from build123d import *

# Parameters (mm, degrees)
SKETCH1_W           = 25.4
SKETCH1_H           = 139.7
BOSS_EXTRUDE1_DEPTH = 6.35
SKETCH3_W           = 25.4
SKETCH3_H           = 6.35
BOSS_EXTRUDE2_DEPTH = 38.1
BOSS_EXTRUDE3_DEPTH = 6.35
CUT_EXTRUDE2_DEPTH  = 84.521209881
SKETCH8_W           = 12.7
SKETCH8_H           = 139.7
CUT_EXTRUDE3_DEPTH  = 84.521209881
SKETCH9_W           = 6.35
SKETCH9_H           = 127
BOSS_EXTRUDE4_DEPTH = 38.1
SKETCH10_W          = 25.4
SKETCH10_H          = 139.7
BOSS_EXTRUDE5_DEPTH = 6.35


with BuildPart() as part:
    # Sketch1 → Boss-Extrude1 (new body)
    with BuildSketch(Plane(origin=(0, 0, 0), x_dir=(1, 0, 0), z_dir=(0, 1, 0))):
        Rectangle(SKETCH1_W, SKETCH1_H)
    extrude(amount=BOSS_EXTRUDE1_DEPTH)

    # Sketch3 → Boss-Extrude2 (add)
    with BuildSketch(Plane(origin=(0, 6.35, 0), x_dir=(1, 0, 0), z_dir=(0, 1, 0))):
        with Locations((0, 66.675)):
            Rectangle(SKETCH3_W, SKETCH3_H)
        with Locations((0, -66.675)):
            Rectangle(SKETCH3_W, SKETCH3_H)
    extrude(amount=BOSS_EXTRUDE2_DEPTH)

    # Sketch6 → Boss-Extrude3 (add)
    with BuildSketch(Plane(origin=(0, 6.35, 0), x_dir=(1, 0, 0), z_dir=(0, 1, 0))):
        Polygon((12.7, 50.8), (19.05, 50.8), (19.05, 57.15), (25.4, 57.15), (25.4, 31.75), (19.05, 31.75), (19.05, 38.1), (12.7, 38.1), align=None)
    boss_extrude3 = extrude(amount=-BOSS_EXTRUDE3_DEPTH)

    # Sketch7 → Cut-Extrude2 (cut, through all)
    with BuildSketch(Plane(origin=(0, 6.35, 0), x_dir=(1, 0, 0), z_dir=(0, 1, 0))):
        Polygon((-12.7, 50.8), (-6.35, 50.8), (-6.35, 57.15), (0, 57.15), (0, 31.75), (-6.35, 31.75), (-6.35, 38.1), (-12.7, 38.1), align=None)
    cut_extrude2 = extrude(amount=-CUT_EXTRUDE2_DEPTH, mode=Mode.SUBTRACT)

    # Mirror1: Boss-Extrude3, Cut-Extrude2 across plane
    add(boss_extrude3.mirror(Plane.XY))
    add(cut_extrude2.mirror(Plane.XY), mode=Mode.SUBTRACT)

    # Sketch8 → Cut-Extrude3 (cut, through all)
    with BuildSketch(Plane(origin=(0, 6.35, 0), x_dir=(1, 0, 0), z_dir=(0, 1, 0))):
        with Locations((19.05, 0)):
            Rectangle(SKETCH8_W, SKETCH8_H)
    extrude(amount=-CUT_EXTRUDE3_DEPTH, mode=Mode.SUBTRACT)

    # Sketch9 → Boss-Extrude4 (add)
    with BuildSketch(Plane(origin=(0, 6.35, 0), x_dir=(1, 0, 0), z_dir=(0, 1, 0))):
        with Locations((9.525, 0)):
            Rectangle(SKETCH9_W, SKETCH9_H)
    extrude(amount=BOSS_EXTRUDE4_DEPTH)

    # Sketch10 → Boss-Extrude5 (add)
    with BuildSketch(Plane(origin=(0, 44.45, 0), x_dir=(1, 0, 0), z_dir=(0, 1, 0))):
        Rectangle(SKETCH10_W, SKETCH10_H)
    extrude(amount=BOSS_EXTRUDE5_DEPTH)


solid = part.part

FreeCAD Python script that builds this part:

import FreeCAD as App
import Part
import Sketcher
from FreeCAD import Vector
Q = App.Units.Quantity

doc = App.newDocument("Part")
body = doc.addObject("PartDesign::Body", "Body")

# Sketch on XZ plane
sketch1 = body.newObject("Sketcher::SketchObject", "Sketch")
sketch1.AttachmentSupport = (doc.getObject("XZ_Plane"), [""])
sketch1.MapMode = "FlatFace"
sketch1.addGeometry(Part.LineSegment(Vector(-13, -70, 0), Vector(-13, 70, 0)), False)
sketch1.addGeometry(Part.LineSegment(Vector(-13, 70, 0), Vector(13, 70, 0)), False)
sketch1.addGeometry(Part.LineSegment(Vector(13, 70, 0), Vector(13, -70, 0)), False)
sketch1.addGeometry(Part.LineSegment(Vector(13, -70, 0), Vector(-13, -70, 0)), False)
sketch1.addConstraint(Sketcher.Constraint("Coincident", 0, 2, 1, 1))
sketch1.addConstraint(Sketcher.Constraint("Coincident", 1, 2, 2, 1))
sketch1.addConstraint(Sketcher.Constraint("Coincident", 2, 2, 3, 1))
sketch1.addConstraint(Sketcher.Constraint("Coincident", 3, 2, 0, 1))
sketch1.addConstraint(Sketcher.Constraint("Vertical", 0))
sketch1.addConstraint(Sketcher.Constraint("Horizontal", 1))
sketch1.addConstraint(Sketcher.Constraint("Vertical", 2))
sketch1.addConstraint(Sketcher.Constraint("Horizontal", 3))
sketch1.addConstraint(Sketcher.Constraint("Symmetric", 0, 2, 2, 2, -1, 1))
sketch1.addConstraint(Sketcher.Constraint("DistanceX", 1, 1, 1, 2, Q("1 in")))
sketch1.addConstraint(Sketcher.Constraint("DistanceY", 0, 1, 0, 2, Q("5.5 in")))
pad1 = body.newObject("PartDesign::Pad", "Pad")
pad1.Profile = sketch1
pad1.Length = Q("0.25 in")
pad1.Reversed = True

# Sketch on XZ plane
sketch2 = body.newObject("Sketcher::SketchObject", "Sketch001")
sketch2.AttachmentSupport = (doc.getObject("XZ_Plane"), [""])
sketch2.MapMode = "FlatFace"
sketch2.AttachmentOffset = App.Placement(Vector(0, 0, -0.25 * 25.4), App.Rotation())
sketch2.addGeometry(Part.LineSegment(Vector(-13, -70, 0), Vector(-13, -64, 0)), False)
sketch2.addGeometry(Part.LineSegment(Vector(-13, -64, 0), Vector(13, -64, 0)), False)
sketch2.addGeometry(Part.LineSegment(Vector(13, -64, 0), Vector(13, -70, 0)), False)
sketch2.addGeometry(Part.LineSegment(Vector(13, -70, 0), Vector(-13, -70, 0)), False)
sketch2.addGeometry(Part.LineSegment(Vector(-13, 64, 0), Vector(-13, 70, 0)), False)
sketch2.addGeometry(Part.LineSegment(Vector(-13, 70, 0), Vector(13, 70, 0)), False)
sketch2.addGeometry(Part.LineSegment(Vector(13, 70, 0), Vector(13, 64, 0)), False)
sketch2.addGeometry(Part.LineSegment(Vector(13, 64, 0), Vector(-13, 64, 0)), False)
sketch2.addConstraint(Sketcher.Constraint("Coincident", 0, 2, 1, 1))
sketch2.addConstraint(Sketcher.Constraint("Coincident", 1, 2, 2, 1))
sketch2.addConstraint(Sketcher.Constraint("Coincident", 2, 2, 3, 1))
sketch2.addConstraint(Sketcher.Constraint("Coincident", 3, 2, 0, 1))
sketch2.addConstraint(Sketcher.Constraint("Coincident", 4, 2, 5, 1))
sketch2.addConstraint(Sketcher.Constraint("Coincident", 5, 2, 6, 1))
sketch2.addConstraint(Sketcher.Constraint("Coincident", 6, 2, 7, 1))
sketch2.addConstraint(Sketcher.Constraint("Coincident", 7, 2, 4, 1))
sketch2.addConstraint(Sketcher.Constraint("Vertical", 0))
sketch2.addConstraint(Sketcher.Constraint("Horizontal", 1))
sketch2.addConstraint(Sketcher.Constraint("Vertical", 2))
sketch2.addConstraint(Sketcher.Constraint("Horizontal", 3))
sketch2.addConstraint(Sketcher.Constraint("Vertical", 4))
sketch2.addConstraint(Sketcher.Constraint("Horizontal", 5))
sketch2.addConstraint(Sketcher.Constraint("Vertical", 6))
sketch2.addConstraint(Sketcher.Constraint("Horizontal", 7))
sketch2.addConstraint(Sketcher.Constraint("Symmetric", 2, 2, 4, 2, -1, 1))
sketch2.addConstraint(Sketcher.Constraint("Symmetric", 0, 2, 6, 2, -1, 1))
sketch2.addConstraint(Sketcher.Constraint("Vertical", 3, 2, 4, 2))
sketch2.addConstraint(Sketcher.Constraint("DistanceX", 1, 1, 1, 2, Q("1 in")))
sketch2.addConstraint(Sketcher.Constraint("DistanceY", 1, 2, 6, 2, Q("5 in")))
sketch2.addConstraint(Sketcher.Constraint("DistanceY", 0, 1, 0, 2, Q("0.25 in")))
pad2 = body.newObject("PartDesign::Pad", "Pad001")
pad2.Profile = sketch2
pad2.Length = Q("1.5 in")
pad2.Reversed = True

# Sketch on XZ plane
sketch3 = body.newObject("Sketcher::SketchObject", "Sketch002")
sketch3.AttachmentSupport = (doc.getObject("XZ_Plane"), [""])
sketch3.MapMode = "FlatFace"
sketch3.AttachmentOffset = App.Placement(Vector(0, 0, -0.25 * 25.4), App.Rotation())
sketch3.addGeometry(Part.LineSegment(Vector(19, -51, 0), Vector(13, -51, 0)), False)
sketch3.addGeometry(Part.LineSegment(Vector(13, -51, 0), Vector(13, -38, 0)), False)
sketch3.addGeometry(Part.LineSegment(Vector(13, -38, 0), Vector(19, -38, 0)), False)
sketch3.addGeometry(Part.LineSegment(Vector(19, -38, 0), Vector(19, -32, 0)), False)
sketch3.addGeometry(Part.LineSegment(Vector(19, -32, 0), Vector(25, -32, 0)), False)
sketch3.addGeometry(Part.LineSegment(Vector(25, -32, 0), Vector(25, -57, 0)), False)
sketch3.addGeometry(Part.LineSegment(Vector(25, -57, 0), Vector(19, -57, 0)), False)
sketch3.addGeometry(Part.LineSegment(Vector(19, -57, 0), Vector(19, -51, 0)), False)
sketch3.addConstraint(Sketcher.Constraint("Coincident", 0, 2, 1, 1))
sketch3.addConstraint(Sketcher.Constraint("Coincident", 1, 2, 2, 1))
sketch3.addConstraint(Sketcher.Constraint("Coincident", 2, 2, 3, 1))
sketch3.addConstraint(Sketcher.Constraint("Coincident", 3, 2, 4, 1))
sketch3.addConstraint(Sketcher.Constraint("Coincident", 4, 2, 5, 1))
sketch3.addConstraint(Sketcher.Constraint("Coincident", 5, 2, 6, 1))
sketch3.addConstraint(Sketcher.Constraint("Coincident", 6, 2, 7, 1))
sketch3.addConstraint(Sketcher.Constraint("Coincident", 7, 2, 0, 1))
sketch3.addConstraint(Sketcher.Constraint("Horizontal", 0))
sketch3.addConstraint(Sketcher.Constraint("Vertical", 1))
sketch3.addConstraint(Sketcher.Constraint("Horizontal", 2))
sketch3.addConstraint(Sketcher.Constraint("Vertical", 3))
sketch3.addConstraint(Sketcher.Constraint("Horizontal", 4))
sketch3.addConstraint(Sketcher.Constraint("Vertical", 5))
sketch3.addConstraint(Sketcher.Constraint("Horizontal", 6))
sketch3.addConstraint(Sketcher.Constraint("Vertical", 7))
sketch3.addConstraint(Sketcher.Constraint("Vertical", 3, 2, 6, 2))
sketch3.addConstraint(Sketcher.Constraint("Equal", 2, 4))
sketch3.addConstraint(Sketcher.Constraint("Equal", 6, 3))
sketch3.addConstraint(Sketcher.Constraint("Equal", 3, 7))
sketch3.addConstraint(Sketcher.Constraint("DistanceY", 5, 2, 5, 1, Q("1 in")))
sketch3.addConstraint(Sketcher.Constraint("DistanceY", 1, 1, 1, 2, Q("0.5 in")))
sketch3.addConstraint(Sketcher.Constraint("DistanceY", 0, 2, -1, 1, Q("2 in")))
sketch3.addConstraint(Sketcher.Constraint("DistanceX", -1, 1, 4, 2, Q("1 in")))
pad3 = body.newObject("PartDesign::Pad", "Pad002")
pad3.Profile = sketch3
pad3.Length = Q("0.25 in")

# Sketch on XZ plane
sketch4 = body.newObject("Sketcher::SketchObject", "Sketch003")
sketch4.AttachmentSupport = (doc.getObject("XZ_Plane"), [""])
sketch4.MapMode = "FlatFace"
sketch4.AttachmentOffset = App.Placement(Vector(0, 0, -0.25 * 25.4), App.Rotation())
sketch4.addGeometry(Part.LineSegment(Vector(-6, -51, 0), Vector(-13, -51, 0)), False)
sketch4.addGeometry(Part.LineSegment(Vector(-13, -51, 0), Vector(-13, -38, 0)), False)
sketch4.addGeometry(Part.LineSegment(Vector(-13, -38, 0), Vector(-6, -38, 0)), False)
sketch4.addGeometry(Part.LineSegment(Vector(-6, -38, 0), Vector(-6, -32, 0)), False)
sketch4.addGeometry(Part.LineSegment(Vector(-6, -32, 0), Vector(0, -32, 0)), False)
sketch4.addGeometry(Part.LineSegment(Vector(0, -32, 0), Vector(0, -57, 0)), False)
sketch4.addGeometry(Part.LineSegment(Vector(0, -57, 0), Vector(-6, -57, 0)), False)
sketch4.addGeometry(Part.LineSegment(Vector(-6, -57, 0), Vector(-6, -51, 0)), False)
sketch4.addConstraint(Sketcher.Constraint("Coincident", 0, 2, 1, 1))
sketch4.addConstraint(Sketcher.Constraint("Coincident", 1, 2, 2, 1))
sketch4.addConstraint(Sketcher.Constraint("Coincident", 2, 2, 3, 1))
sketch4.addConstraint(Sketcher.Constraint("Coincident", 3, 2, 4, 1))
sketch4.addConstraint(Sketcher.Constraint("Coincident", 4, 2, 5, 1))
sketch4.addConstraint(Sketcher.Constraint("Coincident", 5, 2, 6, 1))
sketch4.addConstraint(Sketcher.Constraint("Coincident", 6, 2, 7, 1))
sketch4.addConstraint(Sketcher.Constraint("Coincident", 7, 2, 0, 1))
sketch4.addConstraint(Sketcher.Constraint("Horizontal", 0))
sketch4.addConstraint(Sketcher.Constraint("Vertical", 1))
sketch4.addConstraint(Sketcher.Constraint("Horizontal", 2))
sketch4.addConstraint(Sketcher.Constraint("Vertical", 3))
sketch4.addConstraint(Sketcher.Constraint("Horizontal", 4))
sketch4.addConstraint(Sketcher.Constraint("Vertical", 5))
sketch4.addConstraint(Sketcher.Constraint("Horizontal", 6))
sketch4.addConstraint(Sketcher.Constraint("Vertical", 7))
sketch4.addConstraint(Sketcher.Constraint("PointOnObject", 4, 2, -2))
sketch4.addConstraint(Sketcher.Constraint("Vertical", 3, 2, 6, 2))
sketch4.addConstraint(Sketcher.Constraint("Equal", 2, 4))
sketch4.addConstraint(Sketcher.Constraint("Equal", 6, 3))
sketch4.addConstraint(Sketcher.Constraint("Equal", 3, 7))
sketch4.addConstraint(Sketcher.Constraint("DistanceY", 5, 2, 5, 1, Q("1 in")))
sketch4.addConstraint(Sketcher.Constraint("DistanceY", 1, 1, 1, 2, Q("0.5 in")))
sketch4.addConstraint(Sketcher.Constraint("DistanceY", 0, 2, -1, 1, Q("2 in")))
pocket1 = body.newObject("PartDesign::Pocket", "Pocket")
pocket1.Profile = sketch4
pocket1.Type = "ThroughAll"
pocket1.Reversed = True
doc.recompute()

mirrored = body.newObject("PartDesign::Mirrored", "Mirrored")
mirrored.Originals = [pad3, pocket1]
mirrored.MirrorPlane = (doc.getObject("XY_Plane"), [""])
body.Tip = mirrored

# Sketch on XZ plane
sketch5 = body.newObject("Sketcher::SketchObject", "Sketch004")
sketch5.AttachmentSupport = (doc.getObject("XZ_Plane"), [""])
sketch5.MapMode = "FlatFace"
sketch5.AttachmentOffset = App.Placement(Vector(0, 0, -0.25 * 25.4), App.Rotation())
sketch5.addGeometry(Part.LineSegment(Vector(13, -70, 0), Vector(13, 70, 0)), False)
sketch5.addGeometry(Part.LineSegment(Vector(13, 70, 0), Vector(25, 70, 0)), False)
sketch5.addGeometry(Part.LineSegment(Vector(25, 70, 0), Vector(25, -70, 0)), False)
sketch5.addGeometry(Part.LineSegment(Vector(25, -70, 0), Vector(13, -70, 0)), False)
sketch5.addConstraint(Sketcher.Constraint("Coincident", 0, 2, 1, 1))
sketch5.addConstraint(Sketcher.Constraint("Coincident", 1, 2, 2, 1))
sketch5.addConstraint(Sketcher.Constraint("Coincident", 2, 2, 3, 1))
sketch5.addConstraint(Sketcher.Constraint("Coincident", 3, 2, 0, 1))
sketch5.addConstraint(Sketcher.Constraint("Vertical", 0))
sketch5.addConstraint(Sketcher.Constraint("Horizontal", 1))
sketch5.addConstraint(Sketcher.Constraint("Vertical", 2))
sketch5.addConstraint(Sketcher.Constraint("Horizontal", 3))
sketch5.addConstraint(Sketcher.Constraint("DistanceX", 1, 1, 1, 2, Q("0.5 in")))
sketch5.addConstraint(Sketcher.Constraint("DistanceY", 0, 1, 0, 2, Q("5.5 in")))
sketch5.addConstraint(Sketcher.Constraint("DistanceX", -1, 1, 1, 2, Q("1 in")))
sketch5.addConstraint(Sketcher.Constraint("DistanceY", -1, 1, 0, 2, Q("2.75 in")))
pocket2 = body.newObject("PartDesign::Pocket", "Pocket001")
pocket2.Profile = sketch5
pocket2.Type = "ThroughAll"
pocket2.Reversed = True

# Sketch on XZ plane
sketch6 = body.newObject("Sketcher::SketchObject", "Sketch005")
sketch6.AttachmentSupport = (doc.getObject("XZ_Plane"), [""])
sketch6.MapMode = "FlatFace"
sketch6.AttachmentOffset = App.Placement(Vector(0, 0, -0.25 * 25.4), App.Rotation())
sketch6.addGeometry(Part.LineSegment(Vector(6, -64, 0), Vector(6, 64, 0)), False)
sketch6.addGeometry(Part.LineSegment(Vector(6, 64, 0), Vector(13, 64, 0)), False)
sketch6.addGeometry(Part.LineSegment(Vector(13, 64, 0), Vector(13, -64, 0)), False)
sketch6.addGeometry(Part.LineSegment(Vector(13, -64, 0), Vector(6, -64, 0)), False)
sketch6.addConstraint(Sketcher.Constraint("Coincident", 0, 2, 1, 1))
sketch6.addConstraint(Sketcher.Constraint("Coincident", 1, 2, 2, 1))
sketch6.addConstraint(Sketcher.Constraint("Coincident", 2, 2, 3, 1))
sketch6.addConstraint(Sketcher.Constraint("Coincident", 3, 2, 0, 1))
sketch6.addConstraint(Sketcher.Constraint("Vertical", 0))
sketch6.addConstraint(Sketcher.Constraint("Horizontal", 1))
sketch6.addConstraint(Sketcher.Constraint("Vertical", 2))
sketch6.addConstraint(Sketcher.Constraint("Horizontal", 3))
sketch6.addConstraint(Sketcher.Constraint("DistanceY", 0, 1, 0, 2, Q("5 in")))
sketch6.addConstraint(Sketcher.Constraint("DistanceX", 1, 1, 1, 2, Q("0.25 in")))
sketch6.addConstraint(Sketcher.Constraint("DistanceY", -1, 1, 0, 2, Q("2.5 in")))
sketch6.addConstraint(Sketcher.Constraint("DistanceX", -1, 1, 1, 2, Q("0.5 in")))
pad4 = body.newObject("PartDesign::Pad", "Pad003")
pad4.Profile = sketch6
pad4.Length = Q("1.5 in")
pad4.Reversed = True

# Sketch on XZ plane
sketch7 = body.newObject("Sketcher::SketchObject", "Sketch006")
sketch7.AttachmentSupport = (doc.getObject("XZ_Plane"), [""])
sketch7.MapMode = "FlatFace"
sketch7.AttachmentOffset = App.Placement(Vector(0, 0, -1.75 * 25.4), App.Rotation())
sketch7.addGeometry(Part.LineSegment(Vector(-13, -70, 0), Vector(-13, 70, 0)), False)
sketch7.addGeometry(Part.LineSegment(Vector(-13, 70, 0), Vector(13, 70, 0)), False)
sketch7.addGeometry(Part.LineSegment(Vector(13, 70, 0), Vector(13, -70, 0)), False)
sketch7.addGeometry(Part.LineSegment(Vector(13, -70, 0), Vector(-13, -70, 0)), False)
sketch7.addConstraint(Sketcher.Constraint("Coincident", 0, 2, 1, 1))
sketch7.addConstraint(Sketcher.Constraint("Coincident", 1, 2, 2, 1))
sketch7.addConstraint(Sketcher.Constraint("Coincident", 2, 2, 3, 1))
sketch7.addConstraint(Sketcher.Constraint("Coincident", 3, 2, 0, 1))
sketch7.addConstraint(Sketcher.Constraint("Vertical", 0))
sketch7.addConstraint(Sketcher.Constraint("Horizontal", 1))
sketch7.addConstraint(Sketcher.Constraint("Vertical", 2))
sketch7.addConstraint(Sketcher.Constraint("Horizontal", 3))
sketch7.addConstraint(Sketcher.Constraint("Symmetric", 0, 2, 2, 2, -1, 1))
sketch7.addConstraint(Sketcher.Constraint("DistanceX", 1, 1, 1, 2, Q("1 in")))
sketch7.addConstraint(Sketcher.Constraint("DistanceY", 0, 1, 0, 2, Q("5.5 in")))
pad5 = body.newObject("PartDesign::Pad", "Pad004")
pad5.Profile = sketch7
pad5.Length = Q("0.25 in")
pad5.Reversed = True

doc.recompute()
